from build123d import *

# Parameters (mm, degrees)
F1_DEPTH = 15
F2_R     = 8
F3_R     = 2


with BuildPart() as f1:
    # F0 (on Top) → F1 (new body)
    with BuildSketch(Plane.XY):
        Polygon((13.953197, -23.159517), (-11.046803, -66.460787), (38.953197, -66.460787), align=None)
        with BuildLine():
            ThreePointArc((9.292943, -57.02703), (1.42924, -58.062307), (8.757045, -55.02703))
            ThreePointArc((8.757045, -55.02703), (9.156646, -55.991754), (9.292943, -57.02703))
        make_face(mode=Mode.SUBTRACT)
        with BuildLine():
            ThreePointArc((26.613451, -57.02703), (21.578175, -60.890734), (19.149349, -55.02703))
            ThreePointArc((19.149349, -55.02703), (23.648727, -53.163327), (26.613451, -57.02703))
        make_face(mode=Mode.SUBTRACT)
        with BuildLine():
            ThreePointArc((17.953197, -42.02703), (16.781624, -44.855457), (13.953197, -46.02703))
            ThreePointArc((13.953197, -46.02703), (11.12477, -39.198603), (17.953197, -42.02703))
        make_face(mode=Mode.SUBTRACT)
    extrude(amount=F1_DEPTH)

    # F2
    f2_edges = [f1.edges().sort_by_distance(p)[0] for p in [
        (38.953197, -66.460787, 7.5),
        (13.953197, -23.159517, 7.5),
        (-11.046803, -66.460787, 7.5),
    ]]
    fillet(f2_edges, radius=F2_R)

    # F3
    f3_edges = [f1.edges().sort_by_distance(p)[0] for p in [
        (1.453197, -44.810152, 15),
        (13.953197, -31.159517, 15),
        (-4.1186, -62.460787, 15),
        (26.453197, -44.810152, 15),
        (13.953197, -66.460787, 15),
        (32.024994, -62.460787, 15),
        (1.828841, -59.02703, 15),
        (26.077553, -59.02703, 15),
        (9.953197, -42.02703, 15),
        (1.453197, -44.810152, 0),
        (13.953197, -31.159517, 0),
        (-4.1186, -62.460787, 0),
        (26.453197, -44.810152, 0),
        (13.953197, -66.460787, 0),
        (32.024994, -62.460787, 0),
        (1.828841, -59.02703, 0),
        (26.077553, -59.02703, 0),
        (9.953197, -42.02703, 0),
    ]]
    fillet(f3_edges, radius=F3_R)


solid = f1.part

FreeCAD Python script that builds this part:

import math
import FreeCAD as App
import Part
import Sketcher

V = App.Vector
Q = App.Units.Quantity


def edges_at(feature, points):
    """Names of the edges that pass closest to the given points."""
    edges = feature.Shape.Edges
    near = lambda p: min(range(len(edges)), key=lambda i: edges[i].distToShape(Part.Vertex(*p))[0])
    return sorted({f"Edge{near(p) + 1}" for p in points})


def add_polygon(sketch, points):
    """Adds a closed chain of lines whose ends are joined by coincident constraints."""
    first, n = sketch.GeometryCount, len(points)
    for a, b in zip(points, points[1:] + points[:1]):
        sketch.addGeometry(Part.LineSegment(App.Vector(*a, 0), App.Vector(*b, 0)), False)
    for i in range(n):
        sketch.addConstraint(Sketcher.Constraint("Coincident", first + i, 2, first + (i + 1) % n, 1))

doc = App.newDocument("Part")
body = doc.addObject("PartDesign::Body", "Body")

sketch1 = body.newObject("Sketcher::SketchObject", "Sketch")
sketch1.AttachmentSupport = (doc.getObject("XY_Plane"), [""])
sketch1.MapMode = "FlatFace"
add_polygon(sketch1, [(14, -23.2), (-11, -66.5), (39, -66.5)])
sketch1.addGeometry(Part.ArcOfCircle(Part.Circle(V(5.3, -57, 0), V(0, 0, 1), 4), math.radians(0), math.radians(30)), False)
sketch1.addGeometry(Part.ArcOfCircle(Part.Circle(V(5.3, -57, 0), V(0, 0, 1), 4), math.radians(30), math.radians(360)), False)
sketch1.addGeometry(Part.ArcOfCircle(Part.Circle(V(22.6, -57, 0), V(0, 0, 1), 4), math.radians(0), math.radians(150)), False)
sketch1.addGeometry(Part.ArcOfCircle(Part.Circle(V(22.6, -57, 0), V(0, 0, 1), 4), math.radians(150), math.radians(360)), False)
sketch1.addGeometry(Part.ArcOfCircle(Part.Circle(V(14, -42, 0), V(0, 0, 1), 4), math.radians(0), math.radians(270)), False)
sketch1.addGeometry(Part.ArcOfCircle(Part.Circle(V(14, -42, 0), V(0, 0, 1), 4), math.radians(-90), math.radians(0)), False)
sketch1.addConstraint(Sketcher.Constraint("Tangent", 3, 1, 4, 2))
sketch1.addConstraint(Sketcher.Constraint("Coincident", 4, 1, 3, 2))
sketch1.addConstraint(Sketcher.Constraint("Tangent", 5, 1, 6, 2))
sketch1.addConstraint(Sketcher.Constraint("Coincident", 6, 1, 5, 2))
sketch1.addConstraint(Sketcher.Constraint("Tangent", 7, 1, 8, 2))
sketch1.addConstraint(Sketcher.Constraint("Coincident", 8, 1, 7, 2))
sketch1.addConstraint(Sketcher.Constraint("Horizontal", 1))
sketch1.addConstraint(Sketcher.Constraint("Equal", 4, 5))
sketch1.addConstraint(Sketcher.Constraint("Equal", 6, 7))
sketch1.addConstraint(Sketcher.Constraint("Horizontal", 4, 3, 5, 3))
sketch1.addConstraint(Sketcher.Constraint("Horizontal", 6, 3, 3, 1))
sketch1.addConstraint(Sketcher.Constraint("Horizontal", 3, 1, 5, 1))
sketch1.addConstraint(Sketcher.Constraint("Horizontal", 4, 1, 6, 1))
sketch1.addConstraint(Sketcher.Constraint("Horizontal", 8, 3, 7, 1))
sketch1.addConstraint(Sketcher.Constraint("Vertical", 8, 3, 2, 2))
sketch1.addConstraint(Sketcher.Constraint("Vertical", 2, 2, 8, 1))
sketch1.addConstraint(Sketcher.Constraint("Equal", 0, 2))
sketch1.addConstraint(Sketcher.Constraint("Radius", 4, Q("4 mm")))
sketch1.addConstraint(Sketcher.Constraint("DistanceX", 1, 1, 1, 2, Q("50 mm")))
sketch1.addConstraint(Sketcher.Constraint("Angle", 0, Q("-120 deg")))
sketch1.addConstraint(Sketcher.Constraint("DistanceY", 4, 3, 7, 3, Q("14.999999 mm")))
sketch1.addConstraint(Sketcher.Constraint("DistanceY", 3, 1, 4, 1, Q("2 mm")))
sketch1.addConstraint(Sketcher.Constraint("DistanceX", -1, 1, 3, 3, Q("5.292928 mm")))
sketch1.addConstraint(Sketcher.Constraint("DistanceY", 4, 3, -1, 1, Q("57.027029 mm")))
sketch1.addConstraint(Sketcher.Constraint("DistanceX", -1, 1, 5, 3, Q("22.613451 mm")))
sketch1.addConstraint(Sketcher.Constraint("DistanceX", 3, 3, 7, 3, Q("8.660269 mm")))
sketch1.addConstraint(Sketcher.Constraint("DistanceY", 0, 2, -1, 1, Q("66.460787 mm")))
pad1 = body.newObject("PartDesign::Pad", "Pad")
pad1.Profile = sketch1
pad1.Length = 15
doc.recompute()

fillet = body.newObject("PartDesign::Fillet", "Fillet")
fillet.Base = (pad1, edges_at(pad1, [(38.953, -66.461, 7.5), (13.953, -23.16, 7.5), (-11.047, -66.461, 7.5)]))
fillet.Radius = 8
doc.recompute()

fillet2 = body.newObject("PartDesign::Fillet", "Fillet001")
fillet2.Base = (fillet, edges_at(fillet, [
    (1.453, -44.81, 15),
    (13.953, -31.16, 15),
    (-4.119, -62.461, 15),
    (26.453, -44.81, 15),
    (13.953, -66.461, 15),
    (32.025, -62.461, 15),
    (1.429, -58.062, 15),
    (21.578, -60.891, 15),
    (11.125, -39.199, 15),
    (1.453, -44.81, 0),
    (13.953, -31.16, 0),
    (-4.119, -62.461, 0),
    (26.453, -44.81, 0),
    (13.953, -66.461, 0),
    (32.025, -62.461, 0),
    (1.429, -58.062, 0),
    (21.578, -60.891, 0),
    (11.125, -39.199, 0),
]))
fillet2.Radius = 2

doc.recompute()
